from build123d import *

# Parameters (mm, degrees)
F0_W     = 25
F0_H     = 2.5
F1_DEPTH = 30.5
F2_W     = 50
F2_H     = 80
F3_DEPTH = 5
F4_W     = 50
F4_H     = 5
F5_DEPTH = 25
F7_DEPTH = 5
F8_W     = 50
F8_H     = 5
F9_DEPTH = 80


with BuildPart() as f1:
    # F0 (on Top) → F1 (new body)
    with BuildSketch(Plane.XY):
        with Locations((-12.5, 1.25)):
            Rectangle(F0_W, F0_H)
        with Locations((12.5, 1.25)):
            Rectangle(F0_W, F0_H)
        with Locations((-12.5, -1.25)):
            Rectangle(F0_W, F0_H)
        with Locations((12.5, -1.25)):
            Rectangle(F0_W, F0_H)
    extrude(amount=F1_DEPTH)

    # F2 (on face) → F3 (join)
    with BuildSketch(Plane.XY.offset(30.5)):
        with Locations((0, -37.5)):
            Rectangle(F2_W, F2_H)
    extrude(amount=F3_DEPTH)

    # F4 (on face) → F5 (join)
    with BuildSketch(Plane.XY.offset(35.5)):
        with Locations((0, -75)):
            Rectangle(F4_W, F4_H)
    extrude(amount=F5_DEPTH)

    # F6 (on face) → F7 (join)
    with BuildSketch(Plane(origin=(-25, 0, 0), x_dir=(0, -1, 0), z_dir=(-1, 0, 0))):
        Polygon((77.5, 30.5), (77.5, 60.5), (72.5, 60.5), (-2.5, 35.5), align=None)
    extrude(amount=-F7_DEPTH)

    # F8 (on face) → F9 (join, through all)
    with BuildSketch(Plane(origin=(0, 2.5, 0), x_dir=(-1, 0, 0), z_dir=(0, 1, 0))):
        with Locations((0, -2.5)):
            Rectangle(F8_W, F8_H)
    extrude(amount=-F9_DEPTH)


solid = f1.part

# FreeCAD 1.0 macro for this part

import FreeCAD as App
import Part
import Sketcher

doc = App.newDocument("Part")
body = doc.addObject("PartDesign::Body", "Body")

sketch1 = body.newObject("Sketcher::SketchObject", "Sketch")
sketch1.AttachmentSupport = (doc.getObject("XY_Plane"), [""])
sketch1.MapMode = "FlatFace"
sketch1.addGeometry([
    Part.LineSegment(App.Vector(-25, 2, 0), App.Vector(-25, -2, 0)),
    Part.LineSegment(App.Vector(-25, -2, 0), App.Vector(25, -2, 0)),
    Part.LineSegment(App.Vector(25, -2, 0), App.Vector(25, 2, 0)),
    Part.LineSegment(App.Vector(25, 2, 0), App.Vector(-25, 2, 0)),
], False)
sketch1.addConstraint([
    Sketcher.Constraint("Coincident", 0, 2, 1, 1),
    Sketcher.Constraint("Coincident", 1, 2, 2, 1),
    Sketcher.Constraint("Coincident", 2, 2, 3, 1),
    Sketcher.Constraint("Coincident", 3, 2, 0, 1),
    Sketcher.Constraint("Vertical", 0),
    Sketcher.Constraint("Horizontal", 1),
    Sketcher.Constraint("Vertical", 2),
    Sketcher.Constraint("Horizontal", 3),
    Sketcher.Constraint("Symmetric", 0, 2, 2, 2, -1, 1),
    Sketcher.Constraint("DistanceX", 1, 1, 1, 2, 50.0),
    Sketcher.Constraint("DistanceY", 0, 2, 0, 1, 5.0),
])
pad1 = body.newObject("PartDesign::Pad", "Pad")
pad1.Profile = sketch1
pad1.Length = 30.5

sketch2 = body.newObject("Sketcher::SketchObject", "Sketch001")
sketch2.AttachmentSupport = (doc.getObject("XY_Plane"), [""])
sketch2.MapMode = "FlatFace"
sketch2.AttachmentOffset = App.Placement(App.Vector(0, 0, 30.5), App.Rotation())
sketch2.addGeometry([
    Part.LineSegment(App.Vector(-25, 2, 0), App.Vector(-25, -78, 0)),
    Part.LineSegment(App.Vector(-25, -78, 0), App.Vector(25, -78, 0)),
    Part.LineSegment(App.Vector(25, -78, 0), App.Vector(25, 2, 0)),
    Part.LineSegment(App.Vector(25, 2, 0), App.Vector(-25, 2, 0)),
], False)
sketch2.addConstraint([
    Sketcher.Constraint("Coincident", 0, 2, 1, 1),
    Sketcher.Constraint("Coincident", 1, 2, 2, 1),
    Sketcher.Constraint("Coincident", 2, 2, 3, 1),
    Sketcher.Constraint("Coincident", 3, 2, 0, 1),
    Sketcher.Constraint("Vertical", 0),
    Sketcher.Constraint("Horizontal", 1),
    Sketcher.Constraint("Vertical", 2),
    Sketcher.Constraint("Horizontal", 3),
    Sketcher.Constraint("DistanceX", 1, 1, 1, 2, 50.0),
    Sketcher.Constraint("DistanceY", 0, 2, 0, 1, 80.0),
    Sketcher.Constraint("DistanceX", 0, 2, -1, 1, 25.0),
    Sketcher.Constraint("DistanceY", 0, 2, -1, 1, 77.5),
])
pad2 = body.newObject("PartDesign::Pad", "Pad001")
pad2.Profile = sketch2
pad2.Length = 5

sketch3 = body.newObject("Sketcher::SketchObject", "Sketch002")
sketch3.AttachmentSupport = (doc.getObject("XY_Plane"), [""])
sketch3.MapMode = "FlatFace"
sketch3.AttachmentOffset = App.Placement(App.Vector(0, 0, 35.5), App.Rotation())
sketch3.addGeometry([
    Part.LineSegment(App.Vector(-25, -72, 0), App.Vector(-25, -78, 0)),
    Part.LineSegment(App.Vector(-25, -78, 0), App.Vector(25, -78, 0)),
    Part.LineSegment(App.Vector(25, -78, 0), App.Vector(25, -72, 0)),
    Part.LineSegment(App.Vector(25, -72, 0), App.Vector(-25, -72, 0)),
], False)
sketch3.addConstraint([
    Sketcher.Constraint("Coincident", 0, 2, 1, 1),
    Sketcher.Constraint("Coincident", 1, 2, 2, 1),
    Sketcher.Constraint("Coincident", 2, 2, 3, 1),
    Sketcher.Constraint("Coincident", 3, 2, 0, 1),
    Sketcher.Constraint("Vertical", 0),
    Sketcher.Constraint("Horizontal", 1),
    Sketcher.Constraint("Vertical", 2),
    Sketcher.Constraint("Horizontal", 3),
    Sketcher.Constraint("DistanceX", 1, 1, 1, 2, 50.0),
    Sketcher.Constraint("DistanceY", 0, 2, 0, 1, 5.0),
    Sketcher.Constraint("DistanceX", 0, 2, -1, 1, 25.0),
    Sketcher.Constraint("DistanceY", 0, 2, -1, 1, 77.5),
])
pad3 = body.newObject("PartDesign::Pad", "Pad002")
pad3.Profile = sketch3
pad3.Length = 25

sketch4 = body.newObject("Sketcher::SketchObject", "Sketch003")
sketch4.AttachmentSupport = (doc.getObject("YZ_Plane"), [""])
sketch4.MapMode = "FlatFace"
sketch4.AttachmentOffset = App.Placement(App.Vector(0, 0, -25), App.Rotation())
sketch4.addGeometry([
    Part.LineSegment(App.Vector(-78, 30, 0), App.Vector(-78, 60, 0)),
    Part.LineSegment(App.Vector(-78, 60, 0), App.Vector(-72, 60, 0)),
    Part.LineSegment(App.Vector(-72, 60, 0), App.Vector(2, 36, 0)),
    Part.LineSegment(App.Vector(2, 36, 0), App.Vector(-78, 30, 0)),
], False)
sketch4.addConstraint([
    Sketcher.Constraint("Coincident", 0, 2, 1, 1),
    Sketcher.Constraint("Coincident", 1, 2, 2, 1),
    Sketcher.Constraint("Coincident", 2, 2, 3, 1),
    Sketcher.Constraint("Coincident", 3, 2, 0, 1),
    Sketcher.Constraint("Vertical", 0),
    Sketcher.Constraint("Horizontal", 1),
    Sketcher.Constraint("DistanceX", 1, 1, 1, 2, 5.0),
    Sketcher.Constraint("DistanceY", 0, 1, 0, 2, 30.0),
    Sketcher.Constraint("DistanceX", 1, 2, 2, 2, 75.0),
    Sketcher.Constraint("DistanceY", 2, 2, 1, 2, 25.0),
    Sketcher.Constraint("DistanceX", 0, 2, -1, 1, 77.5),
    Sketcher.Constraint("DistanceY", -1, 1, 0, 2, 60.5),
])
pad4 = body.newObject("PartDesign::Pad", "Pad003")
pad4.Profile = sketch4
pad4.Length = 5

sketch5 = body.newObject("Sketcher::SketchObject", "Sketch004")
sketch5.AttachmentSupport = (doc.getObject("XZ_Plane"), [""])
sketch5.MapMode = "FlatFace"
sketch5.AttachmentOffset = App.Placement(App.Vector(0, 0, -2.5), App.Rotation())
sketch5.addGeometry([
    Part.LineSegment(App.Vector(25, 0, 0), App.Vector(25, -5, 0)),
    Part.LineSegment(App.Vector(25, -5, 0), App.Vector(-25, -5, 0)),
    Part.LineSegment(App.Vector(-25, -5, 0), App.Vector(-25, 0, 0)),
    Part.LineSegment(App.Vector(-25, 0, 0), App.Vector(25, 0, 0)),
], False)
sketch5.addConstraint([
    Sketcher.Constraint("Coincident", 0, 2, 1, 1),
    Sketcher.Constraint("Coincident", 1, 2, 2, 1),
    Sketcher.Constraint("Coincident", 2, 2, 3, 1),
    Sketcher.Constraint("Coincident", 3, 2, 0, 1),
    Sketcher.Constraint("Vertical", 0),
    Sketcher.Constraint("Horizontal", 1),
    Sketcher.Constraint("Vertical", 2),
    Sketcher.Constraint("Horizontal", 3),
    Sketcher.Constraint("Symmetric", 2, 2, 3, 2, -1, 1),
    Sketcher.Constraint("DistanceX", 1, 2, 1, 1, 50.0),
    Sketcher.Constraint("DistanceY", 0, 2, 0, 1, 5.0),
])
pad5 = body.newObject("PartDesign::Pad", "Pad004")
pad5.Profile = sketch5
pad5.Length = 80

doc.recompute()
